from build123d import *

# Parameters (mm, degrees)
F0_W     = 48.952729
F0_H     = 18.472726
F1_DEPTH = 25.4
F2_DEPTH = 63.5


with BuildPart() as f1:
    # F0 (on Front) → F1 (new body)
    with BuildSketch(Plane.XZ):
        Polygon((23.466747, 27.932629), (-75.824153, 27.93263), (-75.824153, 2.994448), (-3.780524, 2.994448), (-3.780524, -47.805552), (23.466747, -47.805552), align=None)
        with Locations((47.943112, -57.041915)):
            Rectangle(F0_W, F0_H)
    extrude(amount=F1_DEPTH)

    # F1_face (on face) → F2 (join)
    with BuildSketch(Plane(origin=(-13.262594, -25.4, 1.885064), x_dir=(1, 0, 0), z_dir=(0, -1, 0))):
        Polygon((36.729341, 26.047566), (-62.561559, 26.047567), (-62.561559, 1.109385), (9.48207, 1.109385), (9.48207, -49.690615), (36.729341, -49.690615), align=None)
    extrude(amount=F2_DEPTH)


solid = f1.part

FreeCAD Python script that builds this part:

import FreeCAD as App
import Part
import Sketcher

V = App.Vector
Q = App.Units.Quantity


def add_polygon(sketch, points):
    """Adds a closed chain of lines whose ends are joined by coincident constraints."""
    first, n = sketch.GeometryCount, len(points)
    for a, b in zip(points, points[1:] + points[:1]):
        sketch.addGeometry(Part.LineSegment(App.Vector(*a, 0), App.Vector(*b, 0)), False)
    for i in range(n):
        sketch.addConstraint(Sketcher.Constraint("Coincident", first + i, 2, first + (i + 1) % n, 1))

doc = App.newDocument("Part")
params = doc.addObject("Spreadsheet::Sheet", "Params")
for row, (alias, value) in enumerate([
    ("sketch1_height", "2 in"),
    ("pad1_length", "1 in"),
    ("sketch2_height", "2 in"),
    ("pad2_length", "2.5 in"),
], start=1):
    params.set(f"A{row}", alias)
    params.set(f"B{row}", "=" + value)
    params.setAlias(f"B{row}", alias)

body = doc.addObject("PartDesign::Body", "Body")
body.AllowCompound = True

sketch1 = doc.addObject("Sketcher::SketchObject", "Sketch")
body.addObject(sketch1)
sketch1.AttachmentSupport = (doc.XZ_Plane, [""])
sketch1.MapMode = "FlatFace"
add_polygon(sketch1, [(23, 28), (-76, 28), (-76, 3), (-4, 3), (-4, -48), (23, -48)])
add_polygon(sketch1, [(23, -48), (23, -66), (72, -66), (72, -48)])
sketch1.addConstraint([
    Sketcher.Constraint("Horizontal", 0),
    Sketcher.Constraint("Vertical", 1),
    Sketcher.Constraint("Horizontal", 2),
    Sketcher.Constraint("Vertical", 3),
    Sketcher.Constraint("Horizontal", 4),
    Sketcher.Constraint("Vertical", 5),
    Sketcher.Constraint("Vertical", 6),
    Sketcher.Constraint("Horizontal", 7),
    Sketcher.Constraint("Vertical", 8),
    Sketcher.Constraint("Horizontal", 9),
    Sketcher.Constraint("Coincident", 9, 2, 4, 2),
    Sketcher.Constraint("DistanceY", 3, 2, 3, 1, Q("2 in")),
    Sketcher.Constraint("DistanceX", 3, 2, 7, 2, Q("3 in")),
    Sketcher.Constraint("DistanceX", 0, 2, 0, 1, 99.2909),
    Sketcher.Constraint("DistanceX", 2, 1, 2, 2, 72.043629),
    Sketcher.Constraint("DistanceY", 1, 2, 1, 1, 24.938182),
    Sketcher.Constraint("DistanceY", 6, 2, 6, 1, 18.472726),
    Sketcher.Constraint("DistanceY", -1, 1, 0, 2, 27.93263),
    Sketcher.Constraint("DistanceX", 0, 2, -1, 1, 75.824153),
])
sketch1.setExpression("Constraints[21]", "Params.sketch1_height")
pad1 = doc.addObject("PartDesign::Pad", "Pad")
body.addObject(pad1)
pad1.Profile = sketch1
pad1.setExpression("Length", "Params.pad1_length")

sketch2 = doc.addObject("Sketcher::SketchObject", "Sketch001")
body.addObject(sketch2)
sketch2.AttachmentSupport = (doc.XZ_Plane, [""])
sketch2.MapMode = "FlatFace"
sketch2.AttachmentOffset = App.Placement(V(0, 0, 1 * 25.4), App.Rotation())
add_polygon(sketch2, [(23, 28), (-76, 28), (-76, 3), (-4, 3), (-4, -48), (23, -48)])
sketch2.addConstraint([
    Sketcher.Constraint("Horizontal", 0),
    Sketcher.Constraint("Vertical", 1),
    Sketcher.Constraint("Horizontal", 2),
    Sketcher.Constraint("Vertical", 3),
    Sketcher.Constraint("Horizontal", 4),
    Sketcher.Constraint("Vertical", 5),
    Sketcher.Constraint("DistanceY", 3, 2, 3, 1, Q("2 in")),
    Sketcher.Constraint("DistanceX", 0, 2, 0, 1, 99.2909),
    Sketcher.Constraint("DistanceX", 2, 1, 2, 2, 72.043629),
    Sketcher.Constraint("DistanceY", 5, 1, 5, 2, 75.738181),
    Sketcher.Constraint("DistanceY", -1, 1, 0, 2, 27.932631),
    Sketcher.Constraint("DistanceX", 0, 2, -1, 1, 75.824153),
])
sketch2.setExpression("Constraints[12]", "Params.sketch2_height")
pad2 = doc.addObject("PartDesign::Pad", "Pad001")
body.addObject(pad2)
pad2.Profile = sketch2
pad2.setExpression("Length", "Params.pad2_length")

doc.recompute()
